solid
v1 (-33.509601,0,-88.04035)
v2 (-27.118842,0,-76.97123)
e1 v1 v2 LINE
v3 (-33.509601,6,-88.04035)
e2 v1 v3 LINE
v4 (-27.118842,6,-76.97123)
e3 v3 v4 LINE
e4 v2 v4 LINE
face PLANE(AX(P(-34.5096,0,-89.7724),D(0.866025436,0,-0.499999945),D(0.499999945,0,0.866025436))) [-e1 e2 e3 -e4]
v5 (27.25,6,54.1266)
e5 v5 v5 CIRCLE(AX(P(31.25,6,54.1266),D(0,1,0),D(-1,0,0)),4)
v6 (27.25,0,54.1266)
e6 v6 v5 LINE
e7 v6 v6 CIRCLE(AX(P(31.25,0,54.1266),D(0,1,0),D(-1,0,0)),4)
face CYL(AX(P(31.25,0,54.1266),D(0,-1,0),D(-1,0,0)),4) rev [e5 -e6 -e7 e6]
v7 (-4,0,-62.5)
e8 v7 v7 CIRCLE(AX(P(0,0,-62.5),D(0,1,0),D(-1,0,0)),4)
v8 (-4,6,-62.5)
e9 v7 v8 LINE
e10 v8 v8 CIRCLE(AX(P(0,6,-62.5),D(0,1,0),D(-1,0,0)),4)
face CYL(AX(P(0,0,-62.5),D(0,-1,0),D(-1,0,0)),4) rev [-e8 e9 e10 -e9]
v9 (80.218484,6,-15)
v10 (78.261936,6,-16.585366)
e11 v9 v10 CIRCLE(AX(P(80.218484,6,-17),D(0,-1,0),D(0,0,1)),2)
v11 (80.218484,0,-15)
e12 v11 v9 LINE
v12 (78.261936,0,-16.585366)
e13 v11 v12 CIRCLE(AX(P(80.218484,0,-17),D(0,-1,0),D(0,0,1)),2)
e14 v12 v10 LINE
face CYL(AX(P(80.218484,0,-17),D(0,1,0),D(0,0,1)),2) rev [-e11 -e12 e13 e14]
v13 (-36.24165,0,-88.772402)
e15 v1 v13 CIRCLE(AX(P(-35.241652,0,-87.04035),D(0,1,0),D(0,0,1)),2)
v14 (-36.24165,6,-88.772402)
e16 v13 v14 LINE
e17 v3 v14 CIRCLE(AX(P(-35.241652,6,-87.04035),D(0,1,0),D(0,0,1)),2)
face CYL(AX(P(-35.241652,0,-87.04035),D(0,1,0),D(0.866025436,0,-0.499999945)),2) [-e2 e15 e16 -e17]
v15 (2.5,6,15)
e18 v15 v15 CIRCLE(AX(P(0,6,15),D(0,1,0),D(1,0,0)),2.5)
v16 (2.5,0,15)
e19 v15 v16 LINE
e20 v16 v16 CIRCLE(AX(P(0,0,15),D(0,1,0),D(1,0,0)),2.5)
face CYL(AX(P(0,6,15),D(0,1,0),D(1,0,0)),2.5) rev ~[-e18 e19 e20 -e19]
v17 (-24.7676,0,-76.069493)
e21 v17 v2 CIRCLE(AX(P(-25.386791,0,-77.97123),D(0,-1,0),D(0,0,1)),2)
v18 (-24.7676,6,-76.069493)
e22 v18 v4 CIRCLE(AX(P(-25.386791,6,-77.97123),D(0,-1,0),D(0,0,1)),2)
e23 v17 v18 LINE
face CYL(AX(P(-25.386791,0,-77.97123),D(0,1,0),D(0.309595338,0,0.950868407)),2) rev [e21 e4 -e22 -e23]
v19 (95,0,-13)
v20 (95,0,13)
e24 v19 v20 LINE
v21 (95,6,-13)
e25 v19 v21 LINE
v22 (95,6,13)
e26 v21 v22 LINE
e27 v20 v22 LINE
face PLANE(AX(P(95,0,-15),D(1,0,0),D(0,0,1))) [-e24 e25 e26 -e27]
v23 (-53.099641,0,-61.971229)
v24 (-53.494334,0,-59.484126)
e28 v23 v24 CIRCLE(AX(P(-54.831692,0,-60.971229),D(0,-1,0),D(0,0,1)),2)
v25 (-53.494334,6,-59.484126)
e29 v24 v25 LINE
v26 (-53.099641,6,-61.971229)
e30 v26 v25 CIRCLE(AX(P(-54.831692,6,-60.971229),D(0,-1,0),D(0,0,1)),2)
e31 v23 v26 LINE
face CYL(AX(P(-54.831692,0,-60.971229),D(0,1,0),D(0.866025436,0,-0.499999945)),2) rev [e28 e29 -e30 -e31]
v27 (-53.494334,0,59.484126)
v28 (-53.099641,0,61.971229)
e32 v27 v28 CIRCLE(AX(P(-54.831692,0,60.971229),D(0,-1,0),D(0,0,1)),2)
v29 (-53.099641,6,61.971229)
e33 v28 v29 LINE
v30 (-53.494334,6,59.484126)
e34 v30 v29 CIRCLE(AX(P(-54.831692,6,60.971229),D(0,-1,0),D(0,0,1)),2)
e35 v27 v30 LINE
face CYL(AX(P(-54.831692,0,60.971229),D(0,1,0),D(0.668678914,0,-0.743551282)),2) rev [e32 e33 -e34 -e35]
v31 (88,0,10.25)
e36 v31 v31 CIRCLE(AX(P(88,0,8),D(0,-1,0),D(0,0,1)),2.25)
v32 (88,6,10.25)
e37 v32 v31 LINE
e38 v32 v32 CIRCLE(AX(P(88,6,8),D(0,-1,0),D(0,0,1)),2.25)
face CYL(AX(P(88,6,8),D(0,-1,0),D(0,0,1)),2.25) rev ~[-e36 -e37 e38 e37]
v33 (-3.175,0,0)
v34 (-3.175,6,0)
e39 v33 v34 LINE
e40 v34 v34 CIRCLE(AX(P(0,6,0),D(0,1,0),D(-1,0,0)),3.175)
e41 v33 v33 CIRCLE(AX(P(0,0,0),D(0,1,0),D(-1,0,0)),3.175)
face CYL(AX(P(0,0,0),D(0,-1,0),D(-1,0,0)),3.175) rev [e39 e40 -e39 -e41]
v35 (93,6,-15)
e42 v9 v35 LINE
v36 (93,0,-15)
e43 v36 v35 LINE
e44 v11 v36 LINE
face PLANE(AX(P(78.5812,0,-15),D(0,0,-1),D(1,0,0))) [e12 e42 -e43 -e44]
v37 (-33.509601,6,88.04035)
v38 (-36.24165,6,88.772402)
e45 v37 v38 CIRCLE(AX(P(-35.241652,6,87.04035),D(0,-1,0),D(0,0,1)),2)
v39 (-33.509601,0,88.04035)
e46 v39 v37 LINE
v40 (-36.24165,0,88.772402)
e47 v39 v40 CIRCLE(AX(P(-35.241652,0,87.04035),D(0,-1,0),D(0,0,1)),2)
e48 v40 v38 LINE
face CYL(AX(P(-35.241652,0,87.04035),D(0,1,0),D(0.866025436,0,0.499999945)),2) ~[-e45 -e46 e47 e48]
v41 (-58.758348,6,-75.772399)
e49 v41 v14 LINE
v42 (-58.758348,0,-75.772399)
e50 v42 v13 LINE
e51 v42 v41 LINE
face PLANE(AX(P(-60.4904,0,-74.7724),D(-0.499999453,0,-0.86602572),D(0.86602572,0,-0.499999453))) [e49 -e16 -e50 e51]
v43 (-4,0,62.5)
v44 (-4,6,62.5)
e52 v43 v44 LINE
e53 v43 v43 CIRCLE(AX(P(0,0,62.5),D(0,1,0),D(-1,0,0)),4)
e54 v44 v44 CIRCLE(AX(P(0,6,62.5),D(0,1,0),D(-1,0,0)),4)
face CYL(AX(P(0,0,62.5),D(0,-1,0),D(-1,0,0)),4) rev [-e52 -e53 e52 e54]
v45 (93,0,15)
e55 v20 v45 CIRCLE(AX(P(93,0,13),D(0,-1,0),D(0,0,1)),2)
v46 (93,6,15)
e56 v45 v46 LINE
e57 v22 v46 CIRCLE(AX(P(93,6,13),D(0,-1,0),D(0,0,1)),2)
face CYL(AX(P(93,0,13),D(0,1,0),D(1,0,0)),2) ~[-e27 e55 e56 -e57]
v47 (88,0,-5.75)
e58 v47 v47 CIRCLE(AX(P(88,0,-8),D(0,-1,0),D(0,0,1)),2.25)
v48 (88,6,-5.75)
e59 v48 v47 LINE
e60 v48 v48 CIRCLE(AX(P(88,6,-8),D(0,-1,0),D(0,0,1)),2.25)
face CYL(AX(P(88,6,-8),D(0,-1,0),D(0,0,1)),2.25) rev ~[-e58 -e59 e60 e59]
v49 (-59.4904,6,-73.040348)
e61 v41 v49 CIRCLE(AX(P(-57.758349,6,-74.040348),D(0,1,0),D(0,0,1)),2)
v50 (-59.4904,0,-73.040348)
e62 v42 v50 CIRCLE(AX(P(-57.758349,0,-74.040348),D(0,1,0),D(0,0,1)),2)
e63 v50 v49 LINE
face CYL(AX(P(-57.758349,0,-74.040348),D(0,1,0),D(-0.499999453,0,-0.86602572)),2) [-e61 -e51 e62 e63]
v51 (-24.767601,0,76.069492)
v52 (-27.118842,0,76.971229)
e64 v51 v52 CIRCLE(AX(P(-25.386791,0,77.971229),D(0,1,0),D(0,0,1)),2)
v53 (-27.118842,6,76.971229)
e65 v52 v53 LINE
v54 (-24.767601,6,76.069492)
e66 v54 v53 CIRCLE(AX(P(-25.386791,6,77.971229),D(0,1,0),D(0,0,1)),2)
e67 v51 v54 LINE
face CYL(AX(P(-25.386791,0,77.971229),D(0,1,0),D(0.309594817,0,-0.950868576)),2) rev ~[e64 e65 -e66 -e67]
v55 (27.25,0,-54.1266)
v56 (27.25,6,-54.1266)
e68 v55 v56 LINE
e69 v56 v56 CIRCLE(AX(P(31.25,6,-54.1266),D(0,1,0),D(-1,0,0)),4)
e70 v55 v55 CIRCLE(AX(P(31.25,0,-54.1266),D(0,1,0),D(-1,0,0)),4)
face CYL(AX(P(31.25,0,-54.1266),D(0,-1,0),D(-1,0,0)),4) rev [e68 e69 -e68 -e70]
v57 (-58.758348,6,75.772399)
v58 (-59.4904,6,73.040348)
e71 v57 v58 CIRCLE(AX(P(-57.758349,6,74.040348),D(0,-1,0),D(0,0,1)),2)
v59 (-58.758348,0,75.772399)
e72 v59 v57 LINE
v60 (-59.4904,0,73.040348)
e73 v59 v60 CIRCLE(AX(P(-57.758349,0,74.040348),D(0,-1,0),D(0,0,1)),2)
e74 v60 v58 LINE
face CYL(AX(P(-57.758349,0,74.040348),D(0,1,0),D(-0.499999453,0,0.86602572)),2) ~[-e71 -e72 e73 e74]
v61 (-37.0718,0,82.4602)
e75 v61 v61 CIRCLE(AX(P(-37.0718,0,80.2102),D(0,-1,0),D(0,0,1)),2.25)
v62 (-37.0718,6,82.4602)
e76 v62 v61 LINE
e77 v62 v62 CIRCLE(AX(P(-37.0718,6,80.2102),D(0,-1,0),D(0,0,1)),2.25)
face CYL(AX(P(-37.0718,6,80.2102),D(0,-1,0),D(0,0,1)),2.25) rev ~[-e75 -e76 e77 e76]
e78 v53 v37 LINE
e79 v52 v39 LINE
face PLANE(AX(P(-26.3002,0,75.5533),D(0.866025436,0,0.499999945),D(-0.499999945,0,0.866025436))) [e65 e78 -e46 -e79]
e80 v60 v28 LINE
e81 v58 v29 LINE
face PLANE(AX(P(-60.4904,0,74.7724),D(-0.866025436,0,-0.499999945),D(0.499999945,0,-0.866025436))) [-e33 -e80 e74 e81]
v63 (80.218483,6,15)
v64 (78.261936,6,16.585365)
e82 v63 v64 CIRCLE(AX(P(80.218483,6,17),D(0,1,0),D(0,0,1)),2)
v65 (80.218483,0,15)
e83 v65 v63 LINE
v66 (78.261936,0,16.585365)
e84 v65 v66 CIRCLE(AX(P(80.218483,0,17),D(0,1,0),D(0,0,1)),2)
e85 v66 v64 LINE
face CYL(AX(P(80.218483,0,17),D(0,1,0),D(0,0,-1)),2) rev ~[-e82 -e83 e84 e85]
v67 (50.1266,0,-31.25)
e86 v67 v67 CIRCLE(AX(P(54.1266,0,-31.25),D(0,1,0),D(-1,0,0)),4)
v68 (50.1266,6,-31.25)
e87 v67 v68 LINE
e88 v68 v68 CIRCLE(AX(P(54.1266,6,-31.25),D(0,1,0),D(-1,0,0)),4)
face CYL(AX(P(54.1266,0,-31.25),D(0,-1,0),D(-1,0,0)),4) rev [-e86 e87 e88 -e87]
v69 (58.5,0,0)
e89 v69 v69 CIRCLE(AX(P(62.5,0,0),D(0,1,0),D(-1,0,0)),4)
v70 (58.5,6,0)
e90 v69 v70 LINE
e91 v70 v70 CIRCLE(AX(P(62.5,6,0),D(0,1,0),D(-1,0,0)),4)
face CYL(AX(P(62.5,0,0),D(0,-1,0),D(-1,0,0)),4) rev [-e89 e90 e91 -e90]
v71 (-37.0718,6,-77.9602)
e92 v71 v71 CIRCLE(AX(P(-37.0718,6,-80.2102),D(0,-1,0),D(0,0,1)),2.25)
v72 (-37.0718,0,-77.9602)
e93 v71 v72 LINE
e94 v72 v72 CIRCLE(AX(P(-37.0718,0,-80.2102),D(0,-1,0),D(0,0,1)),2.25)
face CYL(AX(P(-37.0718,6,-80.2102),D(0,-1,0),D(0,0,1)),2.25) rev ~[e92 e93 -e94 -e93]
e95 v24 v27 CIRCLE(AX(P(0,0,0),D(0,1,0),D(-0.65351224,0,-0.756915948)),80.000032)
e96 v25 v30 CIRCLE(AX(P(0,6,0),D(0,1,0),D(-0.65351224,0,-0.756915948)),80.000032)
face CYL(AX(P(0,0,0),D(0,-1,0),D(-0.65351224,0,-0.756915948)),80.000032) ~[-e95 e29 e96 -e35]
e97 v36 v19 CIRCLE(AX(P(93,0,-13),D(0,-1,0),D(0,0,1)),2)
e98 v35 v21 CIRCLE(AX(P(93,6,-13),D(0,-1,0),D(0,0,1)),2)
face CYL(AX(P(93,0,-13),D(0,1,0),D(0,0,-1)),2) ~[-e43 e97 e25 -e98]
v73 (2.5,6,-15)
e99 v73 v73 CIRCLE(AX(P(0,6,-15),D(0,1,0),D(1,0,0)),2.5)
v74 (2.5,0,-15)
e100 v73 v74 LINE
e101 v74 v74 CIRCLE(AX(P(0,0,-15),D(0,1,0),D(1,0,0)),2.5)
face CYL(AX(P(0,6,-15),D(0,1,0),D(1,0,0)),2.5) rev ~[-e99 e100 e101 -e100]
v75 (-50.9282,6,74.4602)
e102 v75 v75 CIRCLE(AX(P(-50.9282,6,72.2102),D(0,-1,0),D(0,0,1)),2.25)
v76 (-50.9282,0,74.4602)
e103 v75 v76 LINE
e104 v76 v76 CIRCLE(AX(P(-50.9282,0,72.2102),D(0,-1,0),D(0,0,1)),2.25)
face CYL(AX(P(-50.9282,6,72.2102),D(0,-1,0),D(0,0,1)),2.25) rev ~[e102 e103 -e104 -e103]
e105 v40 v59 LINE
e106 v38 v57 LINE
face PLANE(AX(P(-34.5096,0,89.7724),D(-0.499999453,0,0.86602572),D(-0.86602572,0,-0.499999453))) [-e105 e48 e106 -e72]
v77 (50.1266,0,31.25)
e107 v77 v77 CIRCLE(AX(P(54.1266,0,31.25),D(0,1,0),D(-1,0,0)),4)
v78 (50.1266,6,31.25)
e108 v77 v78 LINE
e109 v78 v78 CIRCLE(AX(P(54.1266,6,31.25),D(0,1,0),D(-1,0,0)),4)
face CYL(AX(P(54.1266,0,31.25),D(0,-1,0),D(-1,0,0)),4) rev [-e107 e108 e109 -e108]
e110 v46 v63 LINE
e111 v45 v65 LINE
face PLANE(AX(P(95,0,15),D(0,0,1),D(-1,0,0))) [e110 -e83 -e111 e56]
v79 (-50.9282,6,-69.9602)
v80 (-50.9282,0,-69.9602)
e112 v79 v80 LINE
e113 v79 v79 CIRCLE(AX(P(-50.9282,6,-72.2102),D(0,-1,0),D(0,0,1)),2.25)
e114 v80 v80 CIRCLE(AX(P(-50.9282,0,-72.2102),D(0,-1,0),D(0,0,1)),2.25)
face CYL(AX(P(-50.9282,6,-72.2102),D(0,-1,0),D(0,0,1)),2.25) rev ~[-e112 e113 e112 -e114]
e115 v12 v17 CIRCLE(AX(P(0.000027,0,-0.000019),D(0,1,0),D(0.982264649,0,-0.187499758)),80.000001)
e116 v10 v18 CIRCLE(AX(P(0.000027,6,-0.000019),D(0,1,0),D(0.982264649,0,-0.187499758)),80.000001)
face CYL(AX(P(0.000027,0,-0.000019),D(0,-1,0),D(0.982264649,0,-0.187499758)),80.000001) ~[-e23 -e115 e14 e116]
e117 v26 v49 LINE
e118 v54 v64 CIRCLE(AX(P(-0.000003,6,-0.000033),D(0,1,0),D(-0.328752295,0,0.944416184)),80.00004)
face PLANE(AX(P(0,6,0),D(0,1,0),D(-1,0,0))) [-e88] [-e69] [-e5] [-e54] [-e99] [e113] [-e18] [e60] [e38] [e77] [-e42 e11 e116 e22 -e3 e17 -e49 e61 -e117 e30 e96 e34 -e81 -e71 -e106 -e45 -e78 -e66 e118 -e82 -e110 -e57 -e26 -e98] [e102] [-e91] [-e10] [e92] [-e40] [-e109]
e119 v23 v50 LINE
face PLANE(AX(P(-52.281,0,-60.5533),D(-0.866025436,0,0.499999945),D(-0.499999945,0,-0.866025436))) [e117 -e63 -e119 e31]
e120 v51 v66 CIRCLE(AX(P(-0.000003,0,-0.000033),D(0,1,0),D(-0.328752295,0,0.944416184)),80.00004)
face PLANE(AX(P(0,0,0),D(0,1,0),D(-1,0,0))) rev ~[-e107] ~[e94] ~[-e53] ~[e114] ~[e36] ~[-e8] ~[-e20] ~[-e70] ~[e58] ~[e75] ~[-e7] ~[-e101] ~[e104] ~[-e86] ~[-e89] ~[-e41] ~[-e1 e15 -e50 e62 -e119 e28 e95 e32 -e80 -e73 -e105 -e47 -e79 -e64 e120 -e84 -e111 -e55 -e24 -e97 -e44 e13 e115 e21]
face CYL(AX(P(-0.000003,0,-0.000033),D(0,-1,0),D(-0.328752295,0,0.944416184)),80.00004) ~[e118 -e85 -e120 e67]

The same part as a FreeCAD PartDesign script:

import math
import FreeCAD as App
import Part
import Sketcher
from FreeCAD import Vector
Q = App.Units.Quantity


def edges_at(feature, points):
    """Names of the edges that pass closest to the given points."""
    edges = feature.Shape.Edges
    near = lambda p: min(range(len(edges)), key=lambda i: edges[i].distToShape(Part.Vertex(*p))[0])
    return sorted({f"Edge{near(p) + 1}" for p in points})

doc = App.newDocument("Part")
params = doc.addObject("Spreadsheet::Sheet", "Params")
for row, (alias, value) in enumerate([
    ("sketch1_diameter", "8 mm"),
    ("sketch1_radius", "80 mm"),
    ("sketch1_diameter2", "6.35 mm"),
    ("sketch1_height", "30 mm"),
    ("sketch1_length", "30 mm"),
    ("pad1_length", "6 mm"),
    ("sketch2_diameter", "4.5 mm"),
    ("hole_diameter", "4.5 mm"),
    ("sketch3_diameter", "5 mm"),
    ("pocket1_length", "6 mm"),
    ("fillet_radius", "2 mm"),
], start=1):
    params.set(f"A{row}", alias)
    params.set(f"B{row}", "=" + value)
    params.setAlias(f"B{row}", alias)

body = doc.addObject("PartDesign::Body", "Body")

# Sketch on XZ plane
sketch1 = body.newObject("Sketcher::SketchObject", "Sketch")
sketch1.AttachmentSupport = (doc.getObject("XZ_Plane"), [""])
sketch1.MapMode = "FlatFace"
sketch1.addGeometry([
    Part.LineSegment(Vector(95, -15, 0), Vector(78.6, -15, 0)),  # 0
    Part.ArcOfCircle(Part.Circle(Vector(0, 0, 0), Vector(0, 0, 1), 80), math.radians(-109), math.radians(-11)),  # 1
    Part.LineSegment(Vector(-26.3, -75.6, 0), Vector(-34.5, -89.8, 0)),  # 2
    Part.LineSegment(Vector(-34.5, -89.8, 0), Vector(-60.5, -74.8, 0)),  # 3
    Part.LineSegment(Vector(-60.5, -74.8, 0), Vector(-52.3, -60.6, 0)),  # 4
    Part.ArcOfCircle(Part.Circle(Vector(0, 0, 0), Vector(0, 0, 1), 80), math.radians(131), math.radians(229)),  # 5
    Part.LineSegment(Vector(-52.3, 60.6, 0), Vector(-60.5, 74.8, 0)),  # 6
    Part.LineSegment(Vector(-60.5, 74.8, 0), Vector(-34.5, 89.8, 0)),  # 7
    Part.LineSegment(Vector(-34.5, 89.8, 0), Vector(-26.3, 75.6, 0)),  # 8
    Part.ArcOfCircle(Part.Circle(Vector(0, 0, 0), Vector(0, 0, 1), 80), math.radians(11), math.radians(109)),  # 9
    Part.LineSegment(Vector(78.6, 15, 0), Vector(95, 15, 0)),  # 10
    Part.LineSegment(Vector(95, 15, 0), Vector(95, -15, 0)),  # 11
    Part.Circle(Vector(31.2, -54.1, 0), Vector(0, 0, 1), 4),  # 12
    Part.Circle(Vector(54.1, -31.2, 0), Vector(0, 0, 1), 4),  # 13
    Part.Circle(Vector(0, -62.5, 0), Vector(0, 0, 1), 4),  # 14
    Part.Circle(Vector(62.5, 0, 0), Vector(0, 0, 1), 4),  # 15
    Part.Circle(Vector(54.1, 31.2, 0), Vector(0, 0, 1), 4),  # 16
    Part.Circle(Vector(31.2, 54.1, 0), Vector(0, 0, 1), 4),  # 17
    Part.Circle(Vector(0, 0, 0), Vector(0, 0, 1), 3.2),  # 18
    Part.Circle(Vector(0, 62.5, 0), Vector(0, 0, 1), 4),  # 19
], False)
sketch1.addConstraint([
    Sketcher.Constraint("Coincident", 0, 2, 1, 2),
    Sketcher.Constraint("Coincident", 1, 1, 2, 1),
    Sketcher.Constraint("Coincident", 2, 2, 3, 1),
    Sketcher.Constraint("Coincident", 3, 2, 4, 1),
    Sketcher.Constraint("Coincident", 4, 2, 5, 2),
    Sketcher.Constraint("Coincident", 5, 1, 6, 1),
    Sketcher.Constraint("Coincident", 6, 2, 7, 1),
    Sketcher.Constraint("Coincident", 7, 2, 8, 1),
    Sketcher.Constraint("Coincident", 8, 2, 9, 2),
    Sketcher.Constraint("Coincident", 9, 1, 10, 1),
    Sketcher.Constraint("Coincident", 10, 2, 11, 1),
    Sketcher.Constraint("Coincident", 11, 2, 0, 1),
    Sketcher.Constraint("Horizontal", 0),
    Sketcher.Constraint("Horizontal", 10),
    Sketcher.Constraint("Vertical", 11),
    Sketcher.Constraint("Coincident", 1, 3, -1, 1),
    Sketcher.Constraint("Coincident", 5, 3, -1, 1),
    Sketcher.Constraint("Coincident", 9, 3, -1, 1),
    Sketcher.Constraint("Coincident", 18, 3, -1, 1),
    Sketcher.Constraint("Equal", 1, 5),
    Sketcher.Constraint("Equal", 5, 9),
    Sketcher.Constraint("Equal", 12, 13),
    Sketcher.Constraint("Equal", 13, 14),
    Sketcher.Constraint("Equal", 14, 15),
    Sketcher.Constraint("Equal", 15, 16),
    Sketcher.Constraint("Equal", 16, 17),
    Sketcher.Constraint("Equal", 17, 19),
    Sketcher.Constraint("Symmetric", 14, 3, 19, 3, -1, 1),
    Sketcher.Constraint("Symmetric", 13, 3, 16, 3, -1),
    Sketcher.Constraint("Symmetric", 12, 3, 17, 3, -1),
    Sketcher.Constraint("Symmetric", 3, 2, 6, 2, -1),
    Sketcher.Constraint("Symmetric", 2, 2, 7, 2, -1),
    Sketcher.Constraint("PointOnObject", 14, 3, -2),
    Sketcher.Constraint("PointOnObject", 15, 3, -1),
    Sketcher.Constraint("Perpendicular", 2, 3),
    Sketcher.Constraint("Perpendicular", 3, 4),
    Sketcher.Constraint("Perpendicular", 6, 7),
    Sketcher.Constraint("Perpendicular", 7, 8),
    Sketcher.Constraint("Vertical", 0, 2, 9, 1),
    Sketcher.Constraint("Equal", 2, 4),
    Sketcher.Constraint("Diameter", 12, Q("8 mm")),
    Sketcher.Constraint("Radius", 1, Q("80 mm")),
    Sketcher.Constraint("Diameter", 18, Q("6.35 mm")),
    Sketcher.Constraint("DistanceY", 11, 2, 11, 1, Q("30 mm")),
    Sketcher.Constraint("Angle", 7, Q("30 deg")),
    Sketcher.Constraint("Distance", 3, Q("30 mm")),
    Sketcher.Constraint("DistanceX", -1, 1, 10, 2, Q("95 mm")),
    Sketcher.Constraint("DistanceY", 14, 3, -1, 1, Q("62.5 mm")),
    Sketcher.Constraint("DistanceX", -1, 1, 15, 3, Q("62.5 mm")),
    Sketcher.Constraint("DistanceY", 13, 3, 16, 3, Q("62.5 mm")),
    Sketcher.Constraint("DistanceX", -1, 1, 12, 3, Q("31.25 mm")),
    Sketcher.Constraint("DistanceY", 2, 2, 1, 1, Q("14.219 mm")),
    Sketcher.Constraint("DistanceY", 12, 3, -1, 1, Q("54.1266 mm")),
    Sketcher.Constraint("DistanceX", -1, 1, 13, 3, Q("54.1266 mm")),
])
sketch1.setExpression("Constraints[40]", "Params.sketch1_diameter")
sketch1.setExpression("Constraints[41]", "Params.sketch1_radius")
sketch1.setExpression("Constraints[42]", "Params.sketch1_diameter2")
sketch1.setExpression("Constraints[43]", "Params.sketch1_height")
sketch1.setExpression("Constraints[45]", "Params.sketch1_length")
pad1 = body.newObject("PartDesign::Pad", "Pad")
pad1.Profile = sketch1
pad1.setExpression("Length", "Params.pad1_length")
pad1.Reversed = True

# Sketch on XZ plane
sketch2 = body.newObject("Sketcher::SketchObject", "Sketch001")
sketch2.AttachmentSupport = (doc.getObject("XZ_Plane"), [""])
sketch2.MapMode = "FlatFace"
sketch2.AttachmentOffset = App.Placement(Vector(0, 0, -6), App.Rotation())
sketch2.addGeometry([
    Part.Circle(Vector(88, -8, 0), Vector(0, 0, 1), 2.2),  # 0
    Part.Circle(Vector(88, 8, 0), Vector(0, 0, 1), 2.2),  # 1
    Part.Circle(Vector(-50.9, -72.2, 0), Vector(0, 0, 1), 2.2),  # 2
    Part.Circle(Vector(-37.1, -80.2, 0), Vector(0, 0, 1), 2.2),  # 3
    Part.Circle(Vector(-37.1, 80.2, 0), Vector(0, 0, 1), 2.2),  # 4
    Part.Circle(Vector(-50.9, 72.2, 0), Vector(0, 0, 1), 2.2),  # 5
], False)
sketch2.addConstraint([
    Sketcher.Constraint("Equal", 0, 1),
    Sketcher.Constraint("Equal", 1, 2),
    Sketcher.Constraint("Equal", 2, 3),
    Sketcher.Constraint("Equal", 3, 4),
    Sketcher.Constraint("Equal", 4, 5),
    Sketcher.Constraint("Symmetric", 0, 3, 1, 3, -1),
    Sketcher.Constraint("Symmetric", 3, 3, 4, 3, -1),
    Sketcher.Constraint("Symmetric", 2, 3, 5, 3, -1),
    Sketcher.Constraint("Diameter", 0, Q("4.5 mm")),
    Sketcher.Constraint("DistanceX", -1, 1, 0, 3, Q("88 mm")),
    Sketcher.Constraint("DistanceY", 0, 3, -1, 1, Q("8 mm")),
    Sketcher.Constraint("DistanceY", 3, 3, 2, 3, Q("8 mm")),
    Sketcher.Constraint("DistanceX", 2, 3, -1, 1, Q("50.9282 mm")),
    Sketcher.Constraint("DistanceY", 2, 3, -1, 1, Q("72.2102 mm")),
    Sketcher.Constraint("DistanceX", 3, 3, -1, 1, Q("37.0718 mm")),
])
sketch2.setExpression("Constraints[8]", "Params.sketch2_diameter")
doc.recompute()
hole = body.newObject("PartDesign::Hole", "Hole")
hole.Profile = sketch2
hole.ThreadType = "None"
hole.setExpression("Diameter", "Params.hole_diameter")
hole.DepthType = "ThroughAll"
hole.Reversed = True

# Sketch on XZ plane
sketch3 = body.newObject("Sketcher::SketchObject", "Sketch002")
sketch3.AttachmentSupport = (doc.getObject("XZ_Plane"), [""])
sketch3.MapMode = "FlatFace"
sketch3.AttachmentOffset = App.Placement(Vector(0, 0, -6), App.Rotation())
sketch3.addGeometry([
    Part.Circle(Vector(0, -15, 0), Vector(0, 0, 1), 2.5),
    Part.Circle(Vector(0, 15, 0), Vector(0, 0, 1), 2.5),
], False)
sketch3.addConstraint([
    Sketcher.Constraint("Equal", 0, 1),
    Sketcher.Constraint("Symmetric", 0, 3, 1, 3, -1, 1),
    Sketcher.Constraint("PointOnObject", 0, 3, -2),
    Sketcher.Constraint("Diameter", 0, Q("5 mm")),
    Sketcher.Constraint("DistanceY", 0, 3, -1, 1, Q("15 mm")),
])
sketch3.setExpression("Constraints[3]", "Params.sketch3_diameter")
pocket1 = body.newObject("PartDesign::Pocket", "Pocket")
pocket1.Profile = sketch3
pocket1.setExpression("Length", "Params.pocket1_length")
pocket1.Reversed = True
doc.recompute()

fillet = body.newObject("PartDesign::Fillet", "Fillet")
fillet.Base = (pocket1, edges_at(pocket1, [
    (-52.281, 3, 60.553),
    (-60.49, 3, 74.772),
    (-34.51, 3, 89.772),
    (-26.3, 3, 75.553),
    (78.581, 3, 15),
    (95, 3, 15),
    (95, 3, -15),
    (78.581, 3, -15),
    (-26.3, 3, -75.553),
    (-34.51, 3, -89.772),
    (-52.281, 3, -60.553),
    (-60.49, 3, -74.772),
]))
fillet.setExpression("Radius", "Params.fillet_radius")

doc.recompute()
